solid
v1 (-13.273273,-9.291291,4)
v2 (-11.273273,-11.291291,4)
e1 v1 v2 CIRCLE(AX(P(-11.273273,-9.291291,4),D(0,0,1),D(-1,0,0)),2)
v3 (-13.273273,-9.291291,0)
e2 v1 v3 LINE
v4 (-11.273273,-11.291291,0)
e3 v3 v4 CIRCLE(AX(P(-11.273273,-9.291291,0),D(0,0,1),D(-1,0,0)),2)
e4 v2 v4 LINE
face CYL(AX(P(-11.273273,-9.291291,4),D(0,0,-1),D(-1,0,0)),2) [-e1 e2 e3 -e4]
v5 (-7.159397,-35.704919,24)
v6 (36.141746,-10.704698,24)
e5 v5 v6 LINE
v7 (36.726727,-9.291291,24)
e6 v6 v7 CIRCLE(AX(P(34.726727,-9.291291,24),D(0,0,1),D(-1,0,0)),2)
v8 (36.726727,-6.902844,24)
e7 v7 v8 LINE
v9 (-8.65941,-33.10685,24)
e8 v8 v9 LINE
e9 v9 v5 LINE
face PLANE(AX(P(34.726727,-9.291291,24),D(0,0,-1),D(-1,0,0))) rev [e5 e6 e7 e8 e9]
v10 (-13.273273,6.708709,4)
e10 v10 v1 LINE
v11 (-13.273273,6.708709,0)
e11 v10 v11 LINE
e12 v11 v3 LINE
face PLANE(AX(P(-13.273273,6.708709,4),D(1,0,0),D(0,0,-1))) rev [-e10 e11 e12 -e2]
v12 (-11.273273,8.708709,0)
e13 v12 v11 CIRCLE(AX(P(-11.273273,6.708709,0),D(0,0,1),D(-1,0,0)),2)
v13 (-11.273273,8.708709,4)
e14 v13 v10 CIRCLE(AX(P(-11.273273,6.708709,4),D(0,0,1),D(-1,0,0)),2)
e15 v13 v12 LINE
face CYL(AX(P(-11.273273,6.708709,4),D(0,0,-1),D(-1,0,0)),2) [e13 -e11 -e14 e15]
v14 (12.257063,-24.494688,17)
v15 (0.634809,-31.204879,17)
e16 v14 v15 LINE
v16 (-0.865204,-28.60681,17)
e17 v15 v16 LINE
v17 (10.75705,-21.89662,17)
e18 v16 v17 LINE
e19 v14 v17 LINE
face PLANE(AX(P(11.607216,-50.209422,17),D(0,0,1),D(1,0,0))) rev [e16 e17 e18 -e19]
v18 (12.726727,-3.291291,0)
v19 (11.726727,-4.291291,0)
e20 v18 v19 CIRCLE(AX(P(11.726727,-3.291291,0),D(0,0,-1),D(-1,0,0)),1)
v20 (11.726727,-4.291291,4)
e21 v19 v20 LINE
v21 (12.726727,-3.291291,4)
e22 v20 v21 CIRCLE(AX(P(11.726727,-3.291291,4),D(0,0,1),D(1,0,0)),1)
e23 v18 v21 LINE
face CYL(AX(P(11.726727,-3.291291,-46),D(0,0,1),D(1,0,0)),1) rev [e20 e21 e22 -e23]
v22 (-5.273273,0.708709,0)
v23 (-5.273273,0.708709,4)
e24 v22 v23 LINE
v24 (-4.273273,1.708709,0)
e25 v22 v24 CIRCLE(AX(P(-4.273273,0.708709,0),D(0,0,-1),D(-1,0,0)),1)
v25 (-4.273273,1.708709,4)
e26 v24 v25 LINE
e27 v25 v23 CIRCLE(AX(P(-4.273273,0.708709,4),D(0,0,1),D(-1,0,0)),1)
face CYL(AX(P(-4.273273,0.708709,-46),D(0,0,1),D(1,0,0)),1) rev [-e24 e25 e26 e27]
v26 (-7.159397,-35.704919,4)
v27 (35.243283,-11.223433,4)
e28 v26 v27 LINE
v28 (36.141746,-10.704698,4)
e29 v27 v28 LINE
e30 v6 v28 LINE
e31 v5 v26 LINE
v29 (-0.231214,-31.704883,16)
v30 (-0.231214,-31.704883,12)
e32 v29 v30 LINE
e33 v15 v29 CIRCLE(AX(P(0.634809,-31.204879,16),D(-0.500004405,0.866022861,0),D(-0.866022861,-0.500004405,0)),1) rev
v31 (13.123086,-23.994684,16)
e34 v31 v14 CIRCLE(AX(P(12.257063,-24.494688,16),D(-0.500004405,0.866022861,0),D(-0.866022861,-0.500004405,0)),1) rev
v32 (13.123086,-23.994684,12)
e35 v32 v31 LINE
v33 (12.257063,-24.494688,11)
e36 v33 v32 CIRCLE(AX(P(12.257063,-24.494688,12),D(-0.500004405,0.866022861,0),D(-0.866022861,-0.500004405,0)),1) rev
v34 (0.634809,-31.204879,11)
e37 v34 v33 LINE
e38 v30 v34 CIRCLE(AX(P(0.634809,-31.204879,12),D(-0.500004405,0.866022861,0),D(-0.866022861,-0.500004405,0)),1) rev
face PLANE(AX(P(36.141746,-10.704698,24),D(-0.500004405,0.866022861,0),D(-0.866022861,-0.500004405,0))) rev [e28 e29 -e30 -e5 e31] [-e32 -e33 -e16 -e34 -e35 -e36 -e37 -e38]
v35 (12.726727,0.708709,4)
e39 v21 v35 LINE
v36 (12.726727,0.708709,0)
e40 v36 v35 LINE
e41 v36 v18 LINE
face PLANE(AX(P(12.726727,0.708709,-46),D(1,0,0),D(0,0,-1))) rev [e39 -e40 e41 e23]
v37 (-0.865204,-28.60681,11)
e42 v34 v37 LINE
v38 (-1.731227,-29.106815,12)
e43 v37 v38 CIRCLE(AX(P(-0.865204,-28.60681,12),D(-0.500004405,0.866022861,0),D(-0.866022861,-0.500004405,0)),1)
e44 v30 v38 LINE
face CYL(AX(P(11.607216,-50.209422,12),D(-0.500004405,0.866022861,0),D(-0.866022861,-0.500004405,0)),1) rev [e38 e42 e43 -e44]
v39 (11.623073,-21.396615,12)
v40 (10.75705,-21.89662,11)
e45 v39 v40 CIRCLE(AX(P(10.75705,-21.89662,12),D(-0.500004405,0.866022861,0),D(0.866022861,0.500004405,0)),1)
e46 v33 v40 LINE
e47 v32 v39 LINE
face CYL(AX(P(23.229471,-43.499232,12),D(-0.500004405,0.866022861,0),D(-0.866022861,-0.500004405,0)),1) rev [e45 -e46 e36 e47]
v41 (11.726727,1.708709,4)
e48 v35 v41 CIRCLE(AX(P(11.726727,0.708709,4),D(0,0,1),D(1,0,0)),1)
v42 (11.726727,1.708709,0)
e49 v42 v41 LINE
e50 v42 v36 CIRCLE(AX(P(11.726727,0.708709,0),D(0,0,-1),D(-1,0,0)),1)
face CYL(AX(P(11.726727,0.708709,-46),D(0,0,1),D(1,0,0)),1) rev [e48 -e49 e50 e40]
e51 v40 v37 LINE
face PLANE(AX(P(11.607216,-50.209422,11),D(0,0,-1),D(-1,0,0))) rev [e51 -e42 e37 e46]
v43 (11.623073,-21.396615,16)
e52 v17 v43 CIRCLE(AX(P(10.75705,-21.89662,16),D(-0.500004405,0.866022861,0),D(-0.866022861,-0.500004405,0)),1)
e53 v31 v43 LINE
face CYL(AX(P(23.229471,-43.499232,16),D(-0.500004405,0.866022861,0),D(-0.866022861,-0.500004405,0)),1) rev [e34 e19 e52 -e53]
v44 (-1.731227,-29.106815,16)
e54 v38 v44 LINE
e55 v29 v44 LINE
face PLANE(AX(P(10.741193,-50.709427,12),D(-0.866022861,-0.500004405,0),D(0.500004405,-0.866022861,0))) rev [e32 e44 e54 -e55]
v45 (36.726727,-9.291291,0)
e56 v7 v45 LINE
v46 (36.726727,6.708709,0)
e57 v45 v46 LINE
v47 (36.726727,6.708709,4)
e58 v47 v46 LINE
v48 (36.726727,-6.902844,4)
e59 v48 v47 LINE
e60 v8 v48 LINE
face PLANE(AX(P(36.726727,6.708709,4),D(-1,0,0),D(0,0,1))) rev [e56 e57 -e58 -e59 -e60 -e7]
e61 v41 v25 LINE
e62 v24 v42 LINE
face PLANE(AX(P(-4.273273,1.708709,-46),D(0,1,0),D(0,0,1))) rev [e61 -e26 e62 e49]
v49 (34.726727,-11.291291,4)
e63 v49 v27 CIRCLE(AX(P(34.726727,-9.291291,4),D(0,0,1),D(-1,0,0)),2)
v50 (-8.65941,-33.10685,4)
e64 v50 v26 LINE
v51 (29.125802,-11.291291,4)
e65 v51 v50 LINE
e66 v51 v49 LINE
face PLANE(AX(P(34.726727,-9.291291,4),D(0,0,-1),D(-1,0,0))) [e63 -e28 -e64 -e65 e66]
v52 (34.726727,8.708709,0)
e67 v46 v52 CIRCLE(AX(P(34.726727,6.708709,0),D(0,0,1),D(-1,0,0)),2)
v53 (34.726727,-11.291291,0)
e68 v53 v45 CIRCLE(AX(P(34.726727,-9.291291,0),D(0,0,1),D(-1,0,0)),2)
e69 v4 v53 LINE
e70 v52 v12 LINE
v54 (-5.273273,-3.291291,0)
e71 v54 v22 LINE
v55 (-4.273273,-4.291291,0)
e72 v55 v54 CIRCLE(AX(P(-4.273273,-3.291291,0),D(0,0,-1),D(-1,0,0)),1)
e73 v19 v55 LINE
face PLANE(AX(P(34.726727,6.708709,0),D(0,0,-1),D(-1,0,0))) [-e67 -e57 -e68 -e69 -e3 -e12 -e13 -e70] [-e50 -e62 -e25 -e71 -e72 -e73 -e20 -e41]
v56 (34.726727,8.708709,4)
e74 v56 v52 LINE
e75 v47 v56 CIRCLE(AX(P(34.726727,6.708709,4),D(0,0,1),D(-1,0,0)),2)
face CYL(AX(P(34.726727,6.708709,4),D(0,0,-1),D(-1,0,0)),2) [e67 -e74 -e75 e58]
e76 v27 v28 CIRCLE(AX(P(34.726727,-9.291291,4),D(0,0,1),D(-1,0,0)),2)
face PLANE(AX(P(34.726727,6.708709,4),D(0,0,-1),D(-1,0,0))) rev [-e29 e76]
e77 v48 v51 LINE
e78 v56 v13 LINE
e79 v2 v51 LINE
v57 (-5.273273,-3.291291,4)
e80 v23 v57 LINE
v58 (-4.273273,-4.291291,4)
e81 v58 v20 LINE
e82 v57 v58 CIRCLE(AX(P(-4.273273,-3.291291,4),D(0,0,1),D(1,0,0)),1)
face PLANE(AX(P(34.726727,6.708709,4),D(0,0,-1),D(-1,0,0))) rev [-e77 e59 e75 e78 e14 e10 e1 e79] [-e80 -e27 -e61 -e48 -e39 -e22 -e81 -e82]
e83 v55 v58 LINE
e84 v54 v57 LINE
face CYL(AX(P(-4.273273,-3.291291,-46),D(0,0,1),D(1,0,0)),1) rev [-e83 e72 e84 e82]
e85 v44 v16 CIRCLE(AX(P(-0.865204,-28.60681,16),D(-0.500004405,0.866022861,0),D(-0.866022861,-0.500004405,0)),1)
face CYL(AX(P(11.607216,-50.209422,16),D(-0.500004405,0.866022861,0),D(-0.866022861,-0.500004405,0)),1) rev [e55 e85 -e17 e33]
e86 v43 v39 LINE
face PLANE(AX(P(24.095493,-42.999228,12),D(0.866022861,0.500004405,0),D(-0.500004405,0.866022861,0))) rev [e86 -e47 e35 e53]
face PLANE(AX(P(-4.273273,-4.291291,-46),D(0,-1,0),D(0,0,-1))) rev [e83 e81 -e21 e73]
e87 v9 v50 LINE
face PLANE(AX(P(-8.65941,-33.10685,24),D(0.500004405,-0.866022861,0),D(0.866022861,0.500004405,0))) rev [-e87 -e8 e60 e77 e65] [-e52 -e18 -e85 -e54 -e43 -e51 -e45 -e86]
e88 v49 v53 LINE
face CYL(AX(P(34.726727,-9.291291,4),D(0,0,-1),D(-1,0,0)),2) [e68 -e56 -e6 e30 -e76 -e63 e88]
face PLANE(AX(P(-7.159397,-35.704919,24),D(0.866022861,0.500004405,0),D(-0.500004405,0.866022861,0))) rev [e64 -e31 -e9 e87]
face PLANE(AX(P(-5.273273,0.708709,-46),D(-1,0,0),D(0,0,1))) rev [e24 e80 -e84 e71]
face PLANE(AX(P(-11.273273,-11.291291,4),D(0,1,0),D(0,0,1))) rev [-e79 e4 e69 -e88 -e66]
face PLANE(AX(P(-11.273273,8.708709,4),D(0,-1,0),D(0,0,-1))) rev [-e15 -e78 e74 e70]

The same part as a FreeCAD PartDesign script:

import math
import FreeCAD as App
import Part
import Sketcher
from FreeCAD import Vector
Q = App.Units.Quantity

doc = App.newDocument("Part")
params = doc.addObject("Spreadsheet::Sheet", "Params")
for row, (alias, value) in enumerate([
    ("sketch1_radius", "2 mm"),
    ("sketch1_width", "46 mm"),
    ("sketch1_height", "16 mm"),
    ("pad1_length", "4 mm"),
    ("sketch2_radius", "1 mm"),
    ("sketch2_width", "16 mm"),
    ("sketch2_height", "4 mm"),
    ("pocket1_length", "50 mm"),
    ("sketch3_radius", "2 mm"),
    ("sketch3_length", "50 mm"),
    ("sketch3_length2", "3 mm"),
    ("pad2_length", "20 mm"),
    ("sketch4_radius", "1 mm"),
    ("sketch4_height", "4 mm"),
], start=1):
    params.set(f"A{row}", alias)
    params.set(f"B{row}", "=" + value)
    params.setAlias(f"B{row}", alias)

body = doc.addObject("PartDesign::Body", "Body")

sketch1 = body.newObject("Sketcher::SketchObject", "Sketch")
sketch1.AttachmentSupport = (doc.getObject("XY_Plane"), [""])
sketch1.MapMode = "FlatFace"
sketch1.addGeometry(Part.LineSegment(Vector(34.7, 8.7, 0), Vector(-11.3, 8.7, 0)), False)
sketch1.addGeometry(Part.ArcOfCircle(Part.Circle(Vector(-11.3, 6.7, 0), Vector(0, 0, 1), 2), math.radians(90), math.radians(180)), False)
sketch1.addGeometry(Part.LineSegment(Vector(-13.3, 6.7, 0), Vector(-13.3, -9.3, 0)), False)
sketch1.addGeometry(Part.ArcOfCircle(Part.Circle(Vector(-11.3, -9.3, 0), Vector(0, 0, 1), 2), math.radians(180), math.radians(270)), False)
sketch1.addGeometry(Part.LineSegment(Vector(-11.3, -11.3, 0), Vector(34.7, -11.3, 0)), False)
sketch1.addGeometry(Part.ArcOfCircle(Part.Circle(Vector(34.7, -9.3, 0), Vector(0, 0, 1), 2), math.radians(-90), math.radians(0)), False)
sketch1.addGeometry(Part.LineSegment(Vector(36.7, -9.3, 0), Vector(36.7, 6.7, 0)), False)
sketch1.addGeometry(Part.ArcOfCircle(Part.Circle(Vector(34.7, 6.7, 0), Vector(0, 0, 1), 2), math.radians(0), math.radians(90)), False)
sketch1.addConstraint(Sketcher.Constraint("Tangent", 0, 2, 1, 1))
sketch1.addConstraint(Sketcher.Constraint("Tangent", 1, 2, 2, 1))
sketch1.addConstraint(Sketcher.Constraint("Tangent", 2, 2, 3, 1))
sketch1.addConstraint(Sketcher.Constraint("Tangent", 3, 2, 4, 1))
sketch1.addConstraint(Sketcher.Constraint("Tangent", 4, 2, 5, 1))
sketch1.addConstraint(Sketcher.Constraint("Tangent", 5, 2, 6, 1))
sketch1.addConstraint(Sketcher.Constraint("Tangent", 6, 2, 7, 1))
sketch1.addConstraint(Sketcher.Constraint("Tangent", 7, 2, 0, 1))
sketch1.addConstraint(Sketcher.Constraint("Horizontal", 0))
sketch1.addConstraint(Sketcher.Constraint("Vertical", 2))
sketch1.addConstraint(Sketcher.Constraint("Horizontal", 4))
sketch1.addConstraint(Sketcher.Constraint("Vertical", 6))
sketch1.addConstraint(Sketcher.Constraint("Equal", 1, 3))
sketch1.addConstraint(Sketcher.Constraint("Equal", 3, 5))
sketch1.addConstraint(Sketcher.Constraint("Equal", 5, 7))
sketch1.addConstraint(Sketcher.Constraint("Radius", 1, Q("2 mm")))
sketch1.addConstraint(Sketcher.Constraint("DistanceX", 0, 2, 0, 1, Q("46 mm")))
sketch1.addConstraint(Sketcher.Constraint("DistanceY", 2, 2, 2, 1, Q("16 mm")))
sketch1.addConstraint(Sketcher.Constraint("DistanceY", -1, 1, 1, 3, Q("6.708709 mm")))
sketch1.addConstraint(Sketcher.Constraint("DistanceX", 1, 3, -1, 1, Q("11.273273 mm")))
sketch1.setExpression("Constraints[15]", "Params.sketch1_radius")
sketch1.setExpression("Constraints[16]", "Params.sketch1_width")
sketch1.setExpression("Constraints[17]", "Params.sketch1_height")
pad1 = body.newObject("PartDesign::Pad", "Pad")
pad1.Profile = sketch1
pad1.setExpression("Length", "Params.pad1_length")

sketch2 = body.newObject("Sketcher::SketchObject", "Sketch001")
sketch2.AttachmentSupport = (doc.getObject("XY_Plane"), [""])
sketch2.MapMode = "FlatFace"
sketch2.AttachmentOffset = App.Placement(Vector(0, 0, 4), App.Rotation())
sketch2.addGeometry(Part.LineSegment(Vector(11.7, 1.7, 0), Vector(-4.3, 1.7, 0)), False)
sketch2.addGeometry(Part.ArcOfCircle(Part.Circle(Vector(-4.3, 0.7, 0), Vector(0, 0, 1), 1), math.radians(90), math.radians(180)), False)
sketch2.addGeometry(Part.LineSegment(Vector(-5.3, 0.7, 0), Vector(-5.3, -3.3, 0)), False)
sketch2.addGeometry(Part.ArcOfCircle(Part.Circle(Vector(-4.3, -3.3, 0), Vector(0, 0, 1), 1), math.radians(-180), math.radians(-90)), False)
sketch2.addGeometry(Part.LineSegment(Vector(-4.3, -4.3, 0), Vector(11.7, -4.3, 0)), False)
sketch2.addGeometry(Part.ArcOfCircle(Part.Circle(Vector(11.7, -3.3, 0), Vector(0, 0, 1), 1), math.radians(-90), math.radians(0)), False)
sketch2.addGeometry(Part.LineSegment(Vector(12.7, -3.3, 0), Vector(12.7, 0.7, 0)), False)
sketch2.addGeometry(Part.ArcOfCircle(Part.Circle(Vector(11.7, 0.7, 0), Vector(0, 0, 1), 1), math.radians(0), math.radians(90)), False)
sketch2.addConstraint(Sketcher.Constraint("Tangent", 0, 2, 1, 1))
sketch2.addConstraint(Sketcher.Constraint("Tangent", 1, 2, 2, 1))
sketch2.addConstraint(Sketcher.Constraint("Tangent", 2, 2, 3, 1))
sketch2.addConstraint(Sketcher.Constraint("Tangent", 3, 2, 4, 1))
sketch2.addConstraint(Sketcher.Constraint("Tangent", 4, 2, 5, 1))
sketch2.addConstraint(Sketcher.Constraint("Tangent", 5, 2, 6, 1))
sketch2.addConstraint(Sketcher.Constraint("Tangent", 6, 2, 7, 1))
sketch2.addConstraint(Sketcher.Constraint("Tangent", 7, 2, 0, 1))
sketch2.addConstraint(Sketcher.Constraint("Horizontal", 0))
sketch2.addConstraint(Sketcher.Constraint("Vertical", 2))
sketch2.addConstraint(Sketcher.Constraint("Horizontal", 4))
sketch2.addConstraint(Sketcher.Constraint("Vertical", 6))
sketch2.addConstraint(Sketcher.Constraint("Equal", 1, 3))
sketch2.addConstraint(Sketcher.Constraint("Equal", 3, 5))
sketch2.addConstraint(Sketcher.Constraint("Equal", 5, 7))
sketch2.addConstraint(Sketcher.Constraint("Radius", 1, Q("1 mm")))
sketch2.addConstraint(Sketcher.Constraint("DistanceX", 0, 2, 0, 1, Q("16 mm")))
sketch2.addConstraint(Sketcher.Constraint("DistanceY", 2, 2, 2, 1, Q("4 mm")))
sketch2.addConstraint(Sketcher.Constraint("DistanceY", -1, 1, 1, 3, Q("0.708709 mm")))
sketch2.addConstraint(Sketcher.Constraint("DistanceX", 1, 3, -1, 1, Q("4.273273 mm")))
sketch2.setExpression("Constraints[15]", "Params.sketch2_radius")
sketch2.setExpression("Constraints[16]", "Params.sketch2_width")
sketch2.setExpression("Constraints[17]", "Params.sketch2_height")
pocket1 = body.newObject("PartDesign::Pocket", "Pocket")
pocket1.Profile = sketch2
pocket1.setExpression("Length", "Params.pocket1_length")

sketch3 = body.newObject("Sketcher::SketchObject", "Sketch002")
sketch3.AttachmentSupport = (doc.getObject("XY_Plane"), [""])
sketch3.MapMode = "FlatFace"
sketch3.AttachmentOffset = App.Placement(Vector(0, 0, 4), App.Rotation())
sketch3.addGeometry(Part.LineSegment(Vector(-7.2, -35.7, 0), Vector(36.1, -10.7, 0)), False)
sketch3.addGeometry(Part.ArcOfCircle(Part.Circle(Vector(34.7, -9.3, 0), Vector(0, 0, 1), 2), math.radians(-45), math.radians(0)), False)
sketch3.addGeometry(Part.LineSegment(Vector(36.7, -9.3, 0), Vector(36.7, -6.9, 0)), False)
sketch3.addGeometry(Part.LineSegment(Vector(36.7, -6.9, 0), Vector(-8.7, -33.1, 0)), False)
sketch3.addGeometry(Part.LineSegment(Vector(-8.7, -33.1, 0), Vector(-7.2, -35.7, 0)), False)
sketch3.addConstraint(Sketcher.Constraint("Coincident", 0, 2, 1, 1))
sketch3.addConstraint(Sketcher.Constraint("Tangent", 1, 2, 2, 1))
sketch3.addConstraint(Sketcher.Constraint("Coincident", 2, 2, 3, 1))
sketch3.addConstraint(Sketcher.Constraint("Coincident", 3, 2, 4, 1))
sketch3.addConstraint(Sketcher.Constraint("Coincident", 4, 2, 0, 1))
sketch3.addConstraint(Sketcher.Constraint("Vertical", 2))
sketch3.addConstraint(Sketcher.Constraint("Parallel", 0, 3))
sketch3.addConstraint(Sketcher.Constraint("Perpendicular", 3, 4))
sketch3.addConstraint(Sketcher.Constraint("Radius", 1, Q("2 mm")))
sketch3.addConstraint(Sketcher.Constraint("Distance", 0, Q("50 mm")))
sketch3.addConstraint(Sketcher.Constraint("Distance", 4, Q("3 mm")))
sketch3.addConstraint(Sketcher.Constraint("DistanceY", 0, 2, -1, 1, Q("10.704698 mm")))
sketch3.addConstraint(Sketcher.Constraint("Distance", 3, Q("52.40755 mm")))
sketch3.addConstraint(Sketcher.Constraint("DistanceY", 2, 1, 2, 2, Q("2.388447 mm")))
sketch3.addConstraint(Sketcher.Constraint("DistanceX", 3, 2, -1, 1, Q("8.65941 mm")))
sketch3.setExpression("Constraints[8]", "Params.sketch3_radius")
sketch3.setExpression("Constraints[9]", "Params.sketch3_length")
sketch3.setExpression("Constraints[10]", "Params.sketch3_length2")
pad2 = body.newObject("PartDesign::Pad", "Pad001")
pad2.Profile = sketch3
pad2.setExpression("Length", "Params.pad2_length")

sketch4 = body.newObject("Sketcher::SketchObject", "Sketch003")
sketch4.Placement = App.Placement(Vector(12.17088, -21.080335, 0), App.Rotation(Vector(0.866022861, 0.500004405, 0), Vector(0, 0, -1.000000001), Vector(-0.500004405, 0.866022861, 0), "ZXY"))
sketch4.addGeometry(Part.LineSegment(Vector(-1.6, -11, 0), Vector(-15.1, -11, 0)), False)
sketch4.addGeometry(Part.ArcOfCircle(Part.Circle(Vector(-15.1, -12, 0), Vector(0, 0, 1), 1), math.radians(90), math.radians(180)), False)
sketch4.addGeometry(Part.LineSegment(Vector(-16.1, -12, 0), Vector(-16.1, -16, 0)), False)
sketch4.addGeometry(Part.ArcOfCircle(Part.Circle(Vector(-15.1, -16, 0), Vector(0, 0, 1), 1), math.radians(-180), math.radians(-90)), False)
sketch4.addGeometry(Part.LineSegment(Vector(-15.1, -17, 0), Vector(-1.6, -17, 0)), False)
sketch4.addGeometry(Part.ArcOfCircle(Part.Circle(Vector(-1.6, -16, 0), Vector(0, 0, 1), 1), math.radians(-90), math.radians(0)), False)
sketch4.addGeometry(Part.LineSegment(Vector(-0.6, -16, 0), Vector(-0.6, -12, 0)), False)
sketch4.addGeometry(Part.ArcOfCircle(Part.Circle(Vector(-1.6, -12, 0), Vector(0, 0, 1), 1), math.radians(0), math.radians(90)), False)
sketch4.addConstraint(Sketcher.Constraint("Tangent", 0, 2, 1, 1))
sketch4.addConstraint(Sketcher.Constraint("Tangent", 1, 2, 2, 1))
sketch4.addConstraint(Sketcher.Constraint("Tangent", 2, 2, 3, 1))
sketch4.addConstraint(Sketcher.Constraint("Tangent", 3, 2, 4, 1))
sketch4.addConstraint(Sketcher.Constraint("Tangent", 4, 2, 5, 1))
sketch4.addConstraint(Sketcher.Constraint("Tangent", 5, 2, 6, 1))
sketch4.addConstraint(Sketcher.Constraint("Tangent", 6, 2, 7, 1))
sketch4.addConstraint(Sketcher.Constraint("Tangent", 7, 2, 0, 1))
sketch4.addConstraint(Sketcher.Constraint("Horizontal", 0))
sketch4.addConstraint(Sketcher.Constraint("Vertical", 2))
sketch4.addConstraint(Sketcher.Constraint("Horizontal", 4))
sketch4.addConstraint(Sketcher.Constraint("Vertical", 6))
sketch4.addConstraint(Sketcher.Constraint("Equal", 1, 3))
sketch4.addConstraint(Sketcher.Constraint("Equal", 3, 5))
sketch4.addConstraint(Sketcher.Constraint("Equal", 5, 7))
sketch4.addConstraint(Sketcher.Constraint("Radius", 1, Q("1 mm")))
sketch4.addConstraint(Sketcher.Constraint("DistanceY", 2, 2, 2, 1, Q("4 mm")))
sketch4.addConstraint(Sketcher.Constraint("DistanceY", 1, 3, -1, 1, Q("12 mm")))
sketch4.addConstraint(Sketcher.Constraint("DistanceX", 0, 2, 0, 1, Q("13.420263 mm")))
sketch4.addConstraint(Sketcher.Constraint("DistanceX", 1, 3, -1, 1, Q("15.052818 mm")))
sketch4.setExpression("Constraints[15]", "Params.sketch4_radius")
sketch4.setExpression("Constraints[16]", "Params.sketch4_height")
pocket2 = body.newObject("PartDesign::Pocket", "Pocket001")
pocket2.Profile = sketch4
pocket2.Type = "UpToFirst"

doc.recompute()
